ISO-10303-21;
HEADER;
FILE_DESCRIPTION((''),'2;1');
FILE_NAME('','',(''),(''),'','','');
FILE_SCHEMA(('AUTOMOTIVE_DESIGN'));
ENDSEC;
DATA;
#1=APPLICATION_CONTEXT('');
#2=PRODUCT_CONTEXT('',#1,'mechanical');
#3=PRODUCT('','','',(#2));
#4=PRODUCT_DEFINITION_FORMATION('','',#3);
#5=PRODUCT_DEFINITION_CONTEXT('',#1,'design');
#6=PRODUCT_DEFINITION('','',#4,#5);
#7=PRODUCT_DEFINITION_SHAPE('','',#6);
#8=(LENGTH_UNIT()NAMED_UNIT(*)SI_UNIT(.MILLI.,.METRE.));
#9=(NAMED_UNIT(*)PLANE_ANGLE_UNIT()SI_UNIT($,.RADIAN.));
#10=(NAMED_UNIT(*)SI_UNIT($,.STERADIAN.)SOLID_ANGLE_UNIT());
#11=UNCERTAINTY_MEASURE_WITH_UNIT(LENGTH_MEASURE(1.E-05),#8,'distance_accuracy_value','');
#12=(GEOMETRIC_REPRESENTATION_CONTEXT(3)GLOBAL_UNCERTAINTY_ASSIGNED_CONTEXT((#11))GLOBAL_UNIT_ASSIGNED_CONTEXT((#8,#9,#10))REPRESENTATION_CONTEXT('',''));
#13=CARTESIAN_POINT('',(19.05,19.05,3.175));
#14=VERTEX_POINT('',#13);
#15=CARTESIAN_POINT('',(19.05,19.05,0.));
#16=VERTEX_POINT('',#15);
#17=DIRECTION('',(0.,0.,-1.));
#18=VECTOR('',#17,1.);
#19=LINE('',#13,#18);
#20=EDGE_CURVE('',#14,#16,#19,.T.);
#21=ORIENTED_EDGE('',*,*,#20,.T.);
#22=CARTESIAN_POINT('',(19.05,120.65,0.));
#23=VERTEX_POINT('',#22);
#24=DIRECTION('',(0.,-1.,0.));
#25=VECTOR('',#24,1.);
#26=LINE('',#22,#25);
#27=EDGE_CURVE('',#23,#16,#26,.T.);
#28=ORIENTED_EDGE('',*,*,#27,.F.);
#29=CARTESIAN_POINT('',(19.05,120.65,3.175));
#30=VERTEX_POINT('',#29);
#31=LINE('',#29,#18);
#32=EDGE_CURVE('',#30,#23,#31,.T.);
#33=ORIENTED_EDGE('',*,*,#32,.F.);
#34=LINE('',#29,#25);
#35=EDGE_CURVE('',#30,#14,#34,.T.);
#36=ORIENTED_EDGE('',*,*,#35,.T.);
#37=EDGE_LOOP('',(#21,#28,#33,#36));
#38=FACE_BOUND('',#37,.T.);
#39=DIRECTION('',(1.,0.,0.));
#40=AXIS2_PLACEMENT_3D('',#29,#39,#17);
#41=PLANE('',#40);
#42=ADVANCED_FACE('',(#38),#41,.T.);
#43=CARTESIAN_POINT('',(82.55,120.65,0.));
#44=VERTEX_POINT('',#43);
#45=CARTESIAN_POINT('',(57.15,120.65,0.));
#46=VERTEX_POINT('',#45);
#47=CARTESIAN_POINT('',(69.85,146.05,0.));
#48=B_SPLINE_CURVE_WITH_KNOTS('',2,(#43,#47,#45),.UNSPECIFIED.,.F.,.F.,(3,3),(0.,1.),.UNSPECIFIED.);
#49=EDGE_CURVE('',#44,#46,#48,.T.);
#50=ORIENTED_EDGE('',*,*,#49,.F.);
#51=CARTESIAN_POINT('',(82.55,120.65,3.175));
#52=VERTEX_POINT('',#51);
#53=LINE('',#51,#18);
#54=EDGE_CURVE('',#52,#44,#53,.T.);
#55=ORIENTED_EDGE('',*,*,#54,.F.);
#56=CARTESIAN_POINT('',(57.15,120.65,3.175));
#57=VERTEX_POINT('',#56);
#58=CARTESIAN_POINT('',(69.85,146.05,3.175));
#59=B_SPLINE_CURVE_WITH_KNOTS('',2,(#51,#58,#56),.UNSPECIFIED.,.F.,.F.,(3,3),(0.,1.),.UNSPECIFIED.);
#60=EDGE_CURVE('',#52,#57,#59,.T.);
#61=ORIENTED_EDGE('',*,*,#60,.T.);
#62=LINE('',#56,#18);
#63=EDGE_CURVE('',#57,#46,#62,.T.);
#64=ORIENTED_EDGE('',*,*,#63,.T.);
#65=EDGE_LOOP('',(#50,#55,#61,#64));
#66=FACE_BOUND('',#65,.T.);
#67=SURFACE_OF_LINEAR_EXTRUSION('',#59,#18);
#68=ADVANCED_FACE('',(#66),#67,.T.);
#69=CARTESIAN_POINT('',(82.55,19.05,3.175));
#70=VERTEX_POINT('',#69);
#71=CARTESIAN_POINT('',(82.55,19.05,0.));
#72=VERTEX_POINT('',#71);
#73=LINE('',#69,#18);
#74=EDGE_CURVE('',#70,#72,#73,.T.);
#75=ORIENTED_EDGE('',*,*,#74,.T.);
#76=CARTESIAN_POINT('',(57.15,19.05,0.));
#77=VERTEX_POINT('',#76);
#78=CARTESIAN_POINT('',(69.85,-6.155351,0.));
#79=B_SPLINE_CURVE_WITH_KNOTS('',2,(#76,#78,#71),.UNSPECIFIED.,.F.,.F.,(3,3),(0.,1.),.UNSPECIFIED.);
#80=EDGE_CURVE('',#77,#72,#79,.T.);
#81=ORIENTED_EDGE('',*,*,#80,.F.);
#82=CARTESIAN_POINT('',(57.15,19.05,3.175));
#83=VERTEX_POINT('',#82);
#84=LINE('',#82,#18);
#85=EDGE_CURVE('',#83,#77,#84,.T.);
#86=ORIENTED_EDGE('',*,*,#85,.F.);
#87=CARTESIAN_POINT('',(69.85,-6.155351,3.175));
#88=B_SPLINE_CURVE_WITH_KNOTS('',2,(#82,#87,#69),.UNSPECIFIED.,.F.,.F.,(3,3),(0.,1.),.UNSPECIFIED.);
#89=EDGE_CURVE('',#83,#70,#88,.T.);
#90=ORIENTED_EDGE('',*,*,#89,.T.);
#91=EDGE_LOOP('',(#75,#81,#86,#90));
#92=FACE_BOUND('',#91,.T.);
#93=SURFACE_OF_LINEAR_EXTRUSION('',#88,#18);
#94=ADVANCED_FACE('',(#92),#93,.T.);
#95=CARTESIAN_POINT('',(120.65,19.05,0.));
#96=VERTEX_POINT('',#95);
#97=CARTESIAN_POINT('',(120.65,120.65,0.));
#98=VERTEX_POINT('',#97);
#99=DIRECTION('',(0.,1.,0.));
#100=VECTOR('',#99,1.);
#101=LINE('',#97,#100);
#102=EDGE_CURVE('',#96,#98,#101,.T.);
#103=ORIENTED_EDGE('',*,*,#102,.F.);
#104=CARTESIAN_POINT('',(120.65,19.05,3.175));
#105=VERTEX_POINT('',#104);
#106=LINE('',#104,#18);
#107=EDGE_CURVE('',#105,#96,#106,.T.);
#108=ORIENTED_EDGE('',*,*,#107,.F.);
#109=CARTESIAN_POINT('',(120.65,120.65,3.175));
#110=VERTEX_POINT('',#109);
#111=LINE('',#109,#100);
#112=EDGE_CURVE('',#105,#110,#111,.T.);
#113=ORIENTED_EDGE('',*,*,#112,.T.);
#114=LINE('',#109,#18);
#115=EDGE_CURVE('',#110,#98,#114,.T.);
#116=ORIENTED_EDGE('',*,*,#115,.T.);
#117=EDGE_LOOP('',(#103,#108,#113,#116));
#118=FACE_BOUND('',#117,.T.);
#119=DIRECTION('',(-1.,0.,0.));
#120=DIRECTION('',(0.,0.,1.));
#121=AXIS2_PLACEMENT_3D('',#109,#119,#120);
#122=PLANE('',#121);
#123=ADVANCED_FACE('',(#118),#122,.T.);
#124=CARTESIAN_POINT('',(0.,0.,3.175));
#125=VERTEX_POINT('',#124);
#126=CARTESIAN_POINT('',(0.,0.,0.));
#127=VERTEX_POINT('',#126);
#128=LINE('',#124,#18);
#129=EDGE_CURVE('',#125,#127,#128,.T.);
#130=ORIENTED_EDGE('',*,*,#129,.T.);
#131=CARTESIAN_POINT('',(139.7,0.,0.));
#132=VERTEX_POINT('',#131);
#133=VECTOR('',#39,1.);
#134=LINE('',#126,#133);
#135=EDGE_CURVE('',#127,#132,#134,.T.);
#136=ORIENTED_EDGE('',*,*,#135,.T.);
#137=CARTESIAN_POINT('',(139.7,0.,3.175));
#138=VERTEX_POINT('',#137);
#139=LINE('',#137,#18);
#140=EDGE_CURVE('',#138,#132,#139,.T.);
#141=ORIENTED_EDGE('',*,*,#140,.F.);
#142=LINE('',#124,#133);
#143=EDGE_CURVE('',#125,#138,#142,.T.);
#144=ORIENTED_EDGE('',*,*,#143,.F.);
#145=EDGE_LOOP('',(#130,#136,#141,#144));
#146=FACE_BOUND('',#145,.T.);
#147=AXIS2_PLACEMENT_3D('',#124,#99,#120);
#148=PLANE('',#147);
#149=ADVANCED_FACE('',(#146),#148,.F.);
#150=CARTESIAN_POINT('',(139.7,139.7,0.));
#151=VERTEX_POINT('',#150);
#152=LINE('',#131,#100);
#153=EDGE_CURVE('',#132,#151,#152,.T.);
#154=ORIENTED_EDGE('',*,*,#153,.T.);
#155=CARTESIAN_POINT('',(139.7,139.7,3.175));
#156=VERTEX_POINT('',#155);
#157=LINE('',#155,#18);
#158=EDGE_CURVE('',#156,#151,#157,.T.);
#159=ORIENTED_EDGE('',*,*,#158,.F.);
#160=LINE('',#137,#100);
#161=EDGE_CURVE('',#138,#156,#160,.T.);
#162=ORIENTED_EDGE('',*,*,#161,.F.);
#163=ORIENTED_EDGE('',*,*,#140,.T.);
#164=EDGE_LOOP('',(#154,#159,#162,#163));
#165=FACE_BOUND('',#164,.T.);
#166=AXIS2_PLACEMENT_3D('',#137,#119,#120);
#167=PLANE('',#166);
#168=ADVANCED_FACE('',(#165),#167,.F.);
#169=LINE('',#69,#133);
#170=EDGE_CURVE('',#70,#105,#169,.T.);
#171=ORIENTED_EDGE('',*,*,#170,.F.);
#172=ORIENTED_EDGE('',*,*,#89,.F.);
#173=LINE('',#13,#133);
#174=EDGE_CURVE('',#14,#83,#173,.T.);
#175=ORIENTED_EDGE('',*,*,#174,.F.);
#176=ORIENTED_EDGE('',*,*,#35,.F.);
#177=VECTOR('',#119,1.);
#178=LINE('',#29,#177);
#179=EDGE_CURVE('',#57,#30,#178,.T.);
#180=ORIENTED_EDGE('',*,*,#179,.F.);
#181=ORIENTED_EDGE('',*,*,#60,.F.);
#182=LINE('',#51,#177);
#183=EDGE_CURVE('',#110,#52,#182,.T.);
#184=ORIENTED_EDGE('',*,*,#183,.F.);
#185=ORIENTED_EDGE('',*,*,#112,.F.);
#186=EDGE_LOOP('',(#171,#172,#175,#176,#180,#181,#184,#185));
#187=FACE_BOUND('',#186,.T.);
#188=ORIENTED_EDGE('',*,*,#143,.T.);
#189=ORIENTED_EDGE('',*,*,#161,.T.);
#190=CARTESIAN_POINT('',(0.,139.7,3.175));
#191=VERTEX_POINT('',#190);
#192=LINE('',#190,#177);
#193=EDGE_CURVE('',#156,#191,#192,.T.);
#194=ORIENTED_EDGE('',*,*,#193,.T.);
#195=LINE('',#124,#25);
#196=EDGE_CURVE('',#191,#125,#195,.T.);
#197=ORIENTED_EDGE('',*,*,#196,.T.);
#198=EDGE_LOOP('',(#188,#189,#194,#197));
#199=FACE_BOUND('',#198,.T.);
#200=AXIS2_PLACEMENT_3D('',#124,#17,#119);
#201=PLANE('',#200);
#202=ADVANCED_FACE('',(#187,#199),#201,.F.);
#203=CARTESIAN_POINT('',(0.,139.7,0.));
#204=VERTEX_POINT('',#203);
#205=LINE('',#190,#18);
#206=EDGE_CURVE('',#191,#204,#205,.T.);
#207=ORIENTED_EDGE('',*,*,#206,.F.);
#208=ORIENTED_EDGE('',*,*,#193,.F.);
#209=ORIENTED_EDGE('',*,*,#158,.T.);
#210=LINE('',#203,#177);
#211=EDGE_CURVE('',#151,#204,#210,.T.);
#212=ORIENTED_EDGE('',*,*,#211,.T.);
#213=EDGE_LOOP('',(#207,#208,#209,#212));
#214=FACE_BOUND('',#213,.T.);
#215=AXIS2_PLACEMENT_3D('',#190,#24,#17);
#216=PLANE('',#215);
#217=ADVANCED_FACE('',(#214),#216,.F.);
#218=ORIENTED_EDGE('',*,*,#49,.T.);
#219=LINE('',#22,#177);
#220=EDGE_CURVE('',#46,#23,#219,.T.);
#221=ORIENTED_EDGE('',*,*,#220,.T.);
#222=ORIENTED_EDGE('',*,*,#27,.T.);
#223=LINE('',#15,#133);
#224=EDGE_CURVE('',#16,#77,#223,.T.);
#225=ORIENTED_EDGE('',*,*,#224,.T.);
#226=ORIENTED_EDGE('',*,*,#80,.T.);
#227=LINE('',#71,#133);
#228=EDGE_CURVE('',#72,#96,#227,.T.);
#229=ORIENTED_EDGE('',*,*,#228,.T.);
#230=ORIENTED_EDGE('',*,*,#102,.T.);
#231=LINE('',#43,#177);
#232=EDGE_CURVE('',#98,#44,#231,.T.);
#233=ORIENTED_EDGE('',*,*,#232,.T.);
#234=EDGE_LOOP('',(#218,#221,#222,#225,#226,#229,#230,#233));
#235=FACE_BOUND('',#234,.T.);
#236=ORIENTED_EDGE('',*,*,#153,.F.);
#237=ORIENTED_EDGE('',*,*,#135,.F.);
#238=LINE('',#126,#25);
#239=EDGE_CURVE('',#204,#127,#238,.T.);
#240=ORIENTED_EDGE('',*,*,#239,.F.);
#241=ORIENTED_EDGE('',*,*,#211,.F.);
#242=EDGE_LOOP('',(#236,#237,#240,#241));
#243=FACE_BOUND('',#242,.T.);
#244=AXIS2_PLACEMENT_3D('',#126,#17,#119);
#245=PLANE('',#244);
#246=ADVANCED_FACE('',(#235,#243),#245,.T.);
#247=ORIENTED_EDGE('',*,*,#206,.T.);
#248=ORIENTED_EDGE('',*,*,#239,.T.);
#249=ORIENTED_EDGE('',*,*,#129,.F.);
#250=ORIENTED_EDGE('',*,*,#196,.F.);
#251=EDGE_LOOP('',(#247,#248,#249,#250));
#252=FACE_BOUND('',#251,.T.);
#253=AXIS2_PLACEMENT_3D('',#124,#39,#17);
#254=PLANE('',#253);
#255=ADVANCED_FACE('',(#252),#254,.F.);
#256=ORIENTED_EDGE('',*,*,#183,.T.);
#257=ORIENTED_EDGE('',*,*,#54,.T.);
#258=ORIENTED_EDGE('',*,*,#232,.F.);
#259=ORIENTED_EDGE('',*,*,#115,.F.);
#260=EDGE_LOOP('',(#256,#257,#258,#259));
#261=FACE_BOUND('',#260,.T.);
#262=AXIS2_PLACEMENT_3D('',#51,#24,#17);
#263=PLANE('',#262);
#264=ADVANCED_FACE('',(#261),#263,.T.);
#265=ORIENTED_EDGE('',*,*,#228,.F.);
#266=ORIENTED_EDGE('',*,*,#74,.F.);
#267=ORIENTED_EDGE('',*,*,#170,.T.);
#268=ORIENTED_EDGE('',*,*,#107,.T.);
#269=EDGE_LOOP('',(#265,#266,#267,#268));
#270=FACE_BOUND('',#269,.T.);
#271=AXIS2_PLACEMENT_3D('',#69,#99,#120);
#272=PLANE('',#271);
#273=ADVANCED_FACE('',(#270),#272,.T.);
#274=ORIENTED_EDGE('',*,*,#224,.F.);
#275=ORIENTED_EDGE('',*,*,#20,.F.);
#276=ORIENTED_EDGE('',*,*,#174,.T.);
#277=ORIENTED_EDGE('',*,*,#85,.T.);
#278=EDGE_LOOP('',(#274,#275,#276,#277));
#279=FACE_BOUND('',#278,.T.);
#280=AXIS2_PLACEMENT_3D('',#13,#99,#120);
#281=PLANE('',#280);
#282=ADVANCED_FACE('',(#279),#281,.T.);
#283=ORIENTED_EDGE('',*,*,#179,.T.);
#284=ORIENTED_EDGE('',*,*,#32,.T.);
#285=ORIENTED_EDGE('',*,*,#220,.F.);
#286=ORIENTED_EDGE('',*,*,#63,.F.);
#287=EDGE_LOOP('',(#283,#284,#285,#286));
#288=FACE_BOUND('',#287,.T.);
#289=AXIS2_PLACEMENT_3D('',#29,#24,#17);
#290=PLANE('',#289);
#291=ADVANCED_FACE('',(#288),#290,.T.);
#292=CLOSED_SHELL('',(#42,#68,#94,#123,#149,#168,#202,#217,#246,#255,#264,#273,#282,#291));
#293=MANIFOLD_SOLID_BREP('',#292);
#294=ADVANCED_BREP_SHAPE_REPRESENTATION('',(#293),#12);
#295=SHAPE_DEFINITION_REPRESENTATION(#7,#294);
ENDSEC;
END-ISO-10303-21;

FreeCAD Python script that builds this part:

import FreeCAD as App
import Part
import Sketcher

V = App.Vector
Q = App.Units.Quantity

doc = App.newDocument("Part")
params = doc.addObject("Spreadsheet::Sheet", "Params")
for row, (alias, value) in enumerate([
    ("sketch1_width", "5.5 in"),
    ("sketch1_width2", "1.5 in"),
    ("pad1_length", "0.125 in"),
], start=1):
    params.set(f"A{row}", alias)
    params.set(f"B{row}", "=" + value)
    params.setAlias(f"B{row}", alias)

body = doc.addObject("PartDesign::Body", "Body")

# Sketch on XY plane
sketch1 = doc.addObject("Sketcher::SketchObject", "Sketch")
body.addObject(sketch1)
sketch1.AttachmentSupport = (doc.XY_Plane, [""])
sketch1.MapMode = "FlatFace"
sketch1.addGeometry([
    Part.LineSegment(V(0, 139.7, 0), V(0, 0, 0)),  # 0
    Part.LineSegment(V(0, 0, 0), V(139.7, 0, 0)),  # 1
    Part.LineSegment(V(139.7, 0, 0), V(139.7, 139.7, 0)),  # 2
    Part.LineSegment(V(139.7, 139.7, 0), V(0, 139.7, 0)),  # 3
    Part.LineSegment(V(19.05, 19.05, 0), V(19.05, 120.65, 0)),  # 4
    Part.LineSegment(V(19.05, 120.65, 0), V(57.15, 120.65, 0)),  # 5
    Part.BSplineCurve([V(57.15, 120.65, 0), V(69.85, 146.05, 0), V(82.55, 120.65, 0)], [3, 3], [0, 1], False, 2, [1, 1, 1], False),  # 6
    Part.LineSegment(V(82.55, 120.65, 0), V(120.65, 120.65, 0)),  # 7
    Part.LineSegment(V(120.65, 120.65, 0), V(120.65, 19.05, 0)),  # 8
    Part.LineSegment(V(120.65, 19.05, 0), V(82.55, 19.05, 0)),  # 9
    Part.BSplineCurve([V(57.15, 19.05, 0), V(69.85, -6.155351, 0), V(82.55, 19.05, 0)], [3, 3], [0, 1], False, 2, [1, 1, 1], False),  # 10
    Part.LineSegment(V(57.15, 19.05, 0), V(19.05, 19.05, 0)),  # 11
], False)
sketch1.addConstraint([
    Sketcher.Constraint("Block", 6),
    Sketcher.Constraint("Block", 10),
    Sketcher.Constraint("Coincident", 0, 2, 1, 1),
    Sketcher.Constraint("Coincident", 1, 2, 2, 1),
    Sketcher.Constraint("Coincident", 2, 2, 3, 1),
    Sketcher.Constraint("Coincident", 3, 2, 0, 1),
    Sketcher.Constraint("Coincident", 4, 2, 5, 1),
    Sketcher.Constraint("Coincident", 5, 2, 6, 1),
    Sketcher.Constraint("Coincident", 6, 2, 7, 1),
    Sketcher.Constraint("Coincident", 7, 2, 8, 1),
    Sketcher.Constraint("Coincident", 8, 2, 9, 1),
    Sketcher.Constraint("Coincident", 9, 2, 10, 2),
    Sketcher.Constraint("Coincident", 10, 1, 11, 1),
    Sketcher.Constraint("Coincident", 11, 2, 4, 1),
    Sketcher.Constraint("Vertical", 0),
    Sketcher.Constraint("Horizontal", 1),
    Sketcher.Constraint("Vertical", 2),
    Sketcher.Constraint("Horizontal", 3),
    Sketcher.Constraint("Vertical", 4),
    Sketcher.Constraint("Horizontal", 5),
    Sketcher.Constraint("Horizontal", 7),
    Sketcher.Constraint("Vertical", 8),
    Sketcher.Constraint("Horizontal", 9),
    Sketcher.Constraint("Horizontal", 11),
    Sketcher.Constraint("Coincident", 0, 2, -1, 1),
    Sketcher.Constraint("Equal", 5, 7),
    Sketcher.Constraint("Equal", 3, 0),
    Sketcher.Constraint("DistanceX", 1, 1, 1, 2, Q("5.5 in")),
    Sketcher.Constraint("DistanceX", 5, 1, 5, 2, Q("1.5 in")),
])
sketch1.setExpression("Constraints[27]", "Params.sketch1_width")
sketch1.setExpression("Constraints[28]", "Params.sketch1_width2")
pad1 = doc.addObject("PartDesign::Pad", "Pad")
body.addObject(pad1)
pad1.Profile = sketch1
pad1.setExpression("Length", "Params.pad1_length")

doc.recompute()
